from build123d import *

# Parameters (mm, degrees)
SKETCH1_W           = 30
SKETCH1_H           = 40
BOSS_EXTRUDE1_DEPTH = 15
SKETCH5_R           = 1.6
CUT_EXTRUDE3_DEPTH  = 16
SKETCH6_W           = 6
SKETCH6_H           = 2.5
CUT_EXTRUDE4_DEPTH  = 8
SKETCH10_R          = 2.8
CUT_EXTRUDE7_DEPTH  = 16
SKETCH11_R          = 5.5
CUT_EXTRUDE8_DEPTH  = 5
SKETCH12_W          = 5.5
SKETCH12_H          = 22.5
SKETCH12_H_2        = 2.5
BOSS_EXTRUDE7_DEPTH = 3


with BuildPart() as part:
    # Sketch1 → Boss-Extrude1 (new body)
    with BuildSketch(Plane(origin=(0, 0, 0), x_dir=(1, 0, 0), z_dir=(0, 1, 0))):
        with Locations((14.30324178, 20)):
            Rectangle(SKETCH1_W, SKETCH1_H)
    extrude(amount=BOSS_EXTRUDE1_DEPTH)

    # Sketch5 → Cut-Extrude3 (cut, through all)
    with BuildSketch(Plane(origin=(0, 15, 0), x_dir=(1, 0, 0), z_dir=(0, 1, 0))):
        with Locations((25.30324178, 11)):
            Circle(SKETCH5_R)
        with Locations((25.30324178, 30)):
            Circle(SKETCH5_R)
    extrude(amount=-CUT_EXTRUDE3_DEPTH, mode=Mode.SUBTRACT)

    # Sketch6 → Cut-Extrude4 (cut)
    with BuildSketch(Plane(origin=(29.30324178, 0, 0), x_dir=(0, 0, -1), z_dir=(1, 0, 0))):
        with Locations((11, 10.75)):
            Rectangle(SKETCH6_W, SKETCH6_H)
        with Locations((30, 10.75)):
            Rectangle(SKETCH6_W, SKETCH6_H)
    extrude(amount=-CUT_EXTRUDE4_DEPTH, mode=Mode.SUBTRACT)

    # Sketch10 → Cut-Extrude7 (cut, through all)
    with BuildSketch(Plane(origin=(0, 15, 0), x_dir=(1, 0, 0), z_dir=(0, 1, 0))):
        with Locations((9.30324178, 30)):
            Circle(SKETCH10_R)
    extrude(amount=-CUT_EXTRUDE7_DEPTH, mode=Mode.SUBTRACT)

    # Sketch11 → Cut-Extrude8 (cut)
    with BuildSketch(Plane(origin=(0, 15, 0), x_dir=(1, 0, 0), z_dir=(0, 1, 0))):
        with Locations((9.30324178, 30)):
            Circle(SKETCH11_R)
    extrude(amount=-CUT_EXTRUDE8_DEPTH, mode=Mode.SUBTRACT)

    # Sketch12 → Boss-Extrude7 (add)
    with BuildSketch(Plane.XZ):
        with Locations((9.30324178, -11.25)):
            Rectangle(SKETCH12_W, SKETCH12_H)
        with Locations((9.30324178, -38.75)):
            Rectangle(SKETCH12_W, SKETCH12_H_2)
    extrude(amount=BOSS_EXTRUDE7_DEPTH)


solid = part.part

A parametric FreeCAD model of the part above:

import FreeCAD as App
import Part
import Sketcher
from FreeCAD import Vector


def add_polygon(sketch, points):
    """Adds a closed chain of lines whose ends are joined by coincident constraints."""
    first, n = sketch.GeometryCount, len(points)
    for a, b in zip(points, points[1:] + points[:1]):
        sketch.addGeometry(Part.LineSegment(App.Vector(*a, 0), App.Vector(*b, 0)), False)
    for i in range(n):
        sketch.addConstraint(Sketcher.Constraint("Coincident", first + i, 2, first + (i + 1) % n, 1))

doc = App.newDocument("Part")
body = doc.addObject("PartDesign::Body", "Body")

# Sketch on XZ plane
sketch1 = doc.addObject("Sketcher::SketchObject", "Sketch")
body.addObject(sketch1)
sketch1.AttachmentSupport = (doc.XZ_Plane, [""])
sketch1.MapMode = "FlatFace"
add_polygon(sketch1, [(-1, -40), (-1, 0), (29, 0), (29, -40)])  # lines 0-3
sketch1.addConstraint(Sketcher.Constraint("Vertical", 0))
sketch1.addConstraint(Sketcher.Constraint("Horizontal", 1))
sketch1.addConstraint(Sketcher.Constraint("Vertical", 2))
sketch1.addConstraint(Sketcher.Constraint("Horizontal", 3))
sketch1.addConstraint(Sketcher.Constraint("PointOnObject", 0, 2, -1))
sketch1.addConstraint(Sketcher.Constraint("DistanceX", 1, 1, 1, 2, 30.0))
sketch1.addConstraint(Sketcher.Constraint("DistanceY", 0, 1, 0, 2, 40.0))
sketch1.addConstraint(Sketcher.Constraint("DistanceX", 0, 2, -1, 1, 0.696758))
pad1 = doc.addObject("PartDesign::Pad", "Pad")
body.addObject(pad1)
pad1.Profile = sketch1
pad1.Length = 15
pad1.Reversed = True

# Sketch on XZ plane
sketch2 = doc.addObject("Sketcher::SketchObject", "Sketch001")
body.addObject(sketch2)
sketch2.AttachmentSupport = (doc.XZ_Plane, [""])
sketch2.MapMode = "FlatFace"
sketch2.AttachmentOffset = App.Placement(Vector(0, 0, -15), App.Rotation())
sketch2.addGeometry(Part.Circle(Vector(25.3, -11, 0), Vector(0, 0, 1), 1.6), False)
sketch2.addGeometry(Part.Circle(Vector(25.3, -30, 0), Vector(0, 0, 1), 1.6), False)
sketch2.addConstraint(Sketcher.Constraint("Equal", 0, 1))
sketch2.addConstraint(Sketcher.Constraint("Vertical", 0, 3, 1, 3))
sketch2.addConstraint(Sketcher.Constraint("Diameter", 0, 3.2))
sketch2.addConstraint(Sketcher.Constraint("DistanceY", 0, 3, -1, 1, 11.0))
sketch2.addConstraint(Sketcher.Constraint("DistanceY", 1, 3, -1, 1, 30.0))
sketch2.addConstraint(Sketcher.Constraint("DistanceX", -1, 1, 0, 3, 25.303242))
pocket1 = doc.addObject("PartDesign::Pocket", "Pocket")
body.addObject(pocket1)
pocket1.Profile = sketch2
pocket1.Type = "ThroughAll"
pocket1.Reversed = True

# Sketch on YZ plane
sketch3 = doc.addObject("Sketcher::SketchObject", "Sketch002")
body.addObject(sketch3)
sketch3.AttachmentSupport = (doc.YZ_Plane, [""])
sketch3.MapMode = "FlatFace"
sketch3.AttachmentOffset = App.Placement(Vector(0, 0, 29.303242), App.Rotation())
add_polygon(sketch3, [(12, -8), (9.5, -8), (9.5, -14), (12, -14)])  # lines 0-3
add_polygon(sketch3, [(12, -27), (9.5, -27), (9.5, -33), (12, -33)])  # lines 4-7
sketch3.addConstraint(Sketcher.Constraint("Horizontal", 0))
sketch3.addConstraint(Sketcher.Constraint("Vertical", 1))
sketch3.addConstraint(Sketcher.Constraint("Horizontal", 2))
sketch3.addConstraint(Sketcher.Constraint("Vertical", 3))
sketch3.addConstraint(Sketcher.Constraint("Horizontal", 4))
sketch3.addConstraint(Sketcher.Constraint("Vertical", 5))
sketch3.addConstraint(Sketcher.Constraint("Horizontal", 6))
sketch3.addConstraint(Sketcher.Constraint("Vertical", 7))
sketch3.addConstraint(Sketcher.Constraint("Vertical", 1, 2, 4, 2))
sketch3.addConstraint(Sketcher.Constraint("Vertical", 3, 2, 6, 2))
sketch3.addConstraint(Sketcher.Constraint("Equal", 3, 5))
sketch3.addConstraint(Sketcher.Constraint("DistanceY", 1, 2, 1, 1, 6.0))
sketch3.addConstraint(Sketcher.Constraint("DistanceX", 0, 2, 0, 1, 2.5))
sketch3.addConstraint(Sketcher.Constraint("DistanceY", 0, 2, -1, 1, 8.0))
sketch3.addConstraint(Sketcher.Constraint("DistanceX", -1, 1, 2, 2, 12.0))
sketch3.addConstraint(Sketcher.Constraint("DistanceY", 4, 2, -1, 1, 27.0))
pocket2 = doc.addObject("PartDesign::Pocket", "Pocket001")
body.addObject(pocket2)
pocket2.Profile = sketch3
pocket2.Length = 8

# Sketch on XZ plane
sketch4 = doc.addObject("Sketcher::SketchObject", "Sketch003")
body.addObject(sketch4)
sketch4.AttachmentSupport = (doc.XZ_Plane, [""])
sketch4.MapMode = "FlatFace"
sketch4.AttachmentOffset = App.Placement(Vector(0, 0, -15), App.Rotation())
sketch4.addGeometry(Part.Circle(Vector(9.3, -30, 0), Vector(0, 0, 1), 2.8), False)
sketch4.addConstraint(Sketcher.Constraint("Diameter", 0, 5.6))
sketch4.addConstraint(Sketcher.Constraint("DistanceY", 0, 3, -1, 1, 30.0))
sketch4.addConstraint(Sketcher.Constraint("DistanceX", -1, 1, 0, 3, 9.303242))
pocket3 = doc.addObject("PartDesign::Pocket", "Pocket002")
body.addObject(pocket3)
pocket3.Profile = sketch4
pocket3.Type = "ThroughAll"
pocket3.Reversed = True

# Sketch on XZ plane
sketch5 = doc.addObject("Sketcher::SketchObject", "Sketch004")
body.addObject(sketch5)
sketch5.AttachmentSupport = (doc.XZ_Plane, [""])
sketch5.MapMode = "FlatFace"
sketch5.AttachmentOffset = App.Placement(Vector(0, 0, -15), App.Rotation())
sketch5.addGeometry(Part.Circle(Vector(9, -30, 0), Vector(0, 0, 1), 6), False)
sketch5.addConstraint(Sketcher.Constraint("Diameter", 0, 11.0))
sketch5.addConstraint(Sketcher.Constraint("DistanceY", 0, 3, -1, 1, 30.0))
sketch5.addConstraint(Sketcher.Constraint("DistanceX", -1, 1, 0, 3, 9.303242))
pocket4 = doc.addObject("PartDesign::Pocket", "Pocket003")
body.addObject(pocket4)
pocket4.Profile = sketch5
pocket4.Length = 5
pocket4.Reversed = True

# Sketch on XZ plane
sketch6 = doc.addObject("Sketcher::SketchObject", "Sketch005")
body.addObject(sketch6)
sketch6.AttachmentSupport = (doc.XZ_Plane, [""])
sketch6.MapMode = "FlatFace"
add_polygon(sketch6, [(6.6, 0), (6.6, -22.5), (12.1, -22.5), (12.1, 0)])  # lines 0-3
add_polygon(sketch6, [(6.6, -37.5), (6.6, -40), (12.1, -40), (12.1, -37.5)])  # lines 4-7
sketch6.addConstraint(Sketcher.Constraint("Vertical", 0))
sketch6.addConstraint(Sketcher.Constraint("Horizontal", 1))
sketch6.addConstraint(Sketcher.Constraint("Vertical", 2))
sketch6.addConstraint(Sketcher.Constraint("Horizontal", 3))
sketch6.addConstraint(Sketcher.Constraint("Vertical", 4))
sketch6.addConstraint(Sketcher.Constraint("Horizontal", 5))
sketch6.addConstraint(Sketcher.Constraint("Vertical", 6))
sketch6.addConstraint(Sketcher.Constraint("Horizontal", 7))
sketch6.addConstraint(Sketcher.Constraint("PointOnObject", 2, 2, -1))
sketch6.addConstraint(Sketcher.Constraint("Vertical", 3, 2, 4, 2))
sketch6.addConstraint(Sketcher.Constraint("Vertical", 2, 2, 5, 2))
sketch6.addConstraint(Sketcher.Constraint("DistanceX", 1, 1, 1, 2, 5.5))
sketch6.addConstraint(Sketcher.Constraint("DistanceY", 0, 2, 0, 1, 22.5))
sketch6.addConstraint(Sketcher.Constraint("DistanceY", 4, 2, 4, 1, 2.5))
sketch6.addConstraint(Sketcher.Constraint("DistanceY", 4, 2, -1, 1, 40.0))
sketch6.addConstraint(Sketcher.Constraint("DistanceX", -1, 1, 0, 2, 6.553242))
pad2 = doc.addObject("PartDesign::Pad", "Pad001")
body.addObject(pad2)
pad2.Profile = sketch6
pad2.Length = 3

doc.recompute()
